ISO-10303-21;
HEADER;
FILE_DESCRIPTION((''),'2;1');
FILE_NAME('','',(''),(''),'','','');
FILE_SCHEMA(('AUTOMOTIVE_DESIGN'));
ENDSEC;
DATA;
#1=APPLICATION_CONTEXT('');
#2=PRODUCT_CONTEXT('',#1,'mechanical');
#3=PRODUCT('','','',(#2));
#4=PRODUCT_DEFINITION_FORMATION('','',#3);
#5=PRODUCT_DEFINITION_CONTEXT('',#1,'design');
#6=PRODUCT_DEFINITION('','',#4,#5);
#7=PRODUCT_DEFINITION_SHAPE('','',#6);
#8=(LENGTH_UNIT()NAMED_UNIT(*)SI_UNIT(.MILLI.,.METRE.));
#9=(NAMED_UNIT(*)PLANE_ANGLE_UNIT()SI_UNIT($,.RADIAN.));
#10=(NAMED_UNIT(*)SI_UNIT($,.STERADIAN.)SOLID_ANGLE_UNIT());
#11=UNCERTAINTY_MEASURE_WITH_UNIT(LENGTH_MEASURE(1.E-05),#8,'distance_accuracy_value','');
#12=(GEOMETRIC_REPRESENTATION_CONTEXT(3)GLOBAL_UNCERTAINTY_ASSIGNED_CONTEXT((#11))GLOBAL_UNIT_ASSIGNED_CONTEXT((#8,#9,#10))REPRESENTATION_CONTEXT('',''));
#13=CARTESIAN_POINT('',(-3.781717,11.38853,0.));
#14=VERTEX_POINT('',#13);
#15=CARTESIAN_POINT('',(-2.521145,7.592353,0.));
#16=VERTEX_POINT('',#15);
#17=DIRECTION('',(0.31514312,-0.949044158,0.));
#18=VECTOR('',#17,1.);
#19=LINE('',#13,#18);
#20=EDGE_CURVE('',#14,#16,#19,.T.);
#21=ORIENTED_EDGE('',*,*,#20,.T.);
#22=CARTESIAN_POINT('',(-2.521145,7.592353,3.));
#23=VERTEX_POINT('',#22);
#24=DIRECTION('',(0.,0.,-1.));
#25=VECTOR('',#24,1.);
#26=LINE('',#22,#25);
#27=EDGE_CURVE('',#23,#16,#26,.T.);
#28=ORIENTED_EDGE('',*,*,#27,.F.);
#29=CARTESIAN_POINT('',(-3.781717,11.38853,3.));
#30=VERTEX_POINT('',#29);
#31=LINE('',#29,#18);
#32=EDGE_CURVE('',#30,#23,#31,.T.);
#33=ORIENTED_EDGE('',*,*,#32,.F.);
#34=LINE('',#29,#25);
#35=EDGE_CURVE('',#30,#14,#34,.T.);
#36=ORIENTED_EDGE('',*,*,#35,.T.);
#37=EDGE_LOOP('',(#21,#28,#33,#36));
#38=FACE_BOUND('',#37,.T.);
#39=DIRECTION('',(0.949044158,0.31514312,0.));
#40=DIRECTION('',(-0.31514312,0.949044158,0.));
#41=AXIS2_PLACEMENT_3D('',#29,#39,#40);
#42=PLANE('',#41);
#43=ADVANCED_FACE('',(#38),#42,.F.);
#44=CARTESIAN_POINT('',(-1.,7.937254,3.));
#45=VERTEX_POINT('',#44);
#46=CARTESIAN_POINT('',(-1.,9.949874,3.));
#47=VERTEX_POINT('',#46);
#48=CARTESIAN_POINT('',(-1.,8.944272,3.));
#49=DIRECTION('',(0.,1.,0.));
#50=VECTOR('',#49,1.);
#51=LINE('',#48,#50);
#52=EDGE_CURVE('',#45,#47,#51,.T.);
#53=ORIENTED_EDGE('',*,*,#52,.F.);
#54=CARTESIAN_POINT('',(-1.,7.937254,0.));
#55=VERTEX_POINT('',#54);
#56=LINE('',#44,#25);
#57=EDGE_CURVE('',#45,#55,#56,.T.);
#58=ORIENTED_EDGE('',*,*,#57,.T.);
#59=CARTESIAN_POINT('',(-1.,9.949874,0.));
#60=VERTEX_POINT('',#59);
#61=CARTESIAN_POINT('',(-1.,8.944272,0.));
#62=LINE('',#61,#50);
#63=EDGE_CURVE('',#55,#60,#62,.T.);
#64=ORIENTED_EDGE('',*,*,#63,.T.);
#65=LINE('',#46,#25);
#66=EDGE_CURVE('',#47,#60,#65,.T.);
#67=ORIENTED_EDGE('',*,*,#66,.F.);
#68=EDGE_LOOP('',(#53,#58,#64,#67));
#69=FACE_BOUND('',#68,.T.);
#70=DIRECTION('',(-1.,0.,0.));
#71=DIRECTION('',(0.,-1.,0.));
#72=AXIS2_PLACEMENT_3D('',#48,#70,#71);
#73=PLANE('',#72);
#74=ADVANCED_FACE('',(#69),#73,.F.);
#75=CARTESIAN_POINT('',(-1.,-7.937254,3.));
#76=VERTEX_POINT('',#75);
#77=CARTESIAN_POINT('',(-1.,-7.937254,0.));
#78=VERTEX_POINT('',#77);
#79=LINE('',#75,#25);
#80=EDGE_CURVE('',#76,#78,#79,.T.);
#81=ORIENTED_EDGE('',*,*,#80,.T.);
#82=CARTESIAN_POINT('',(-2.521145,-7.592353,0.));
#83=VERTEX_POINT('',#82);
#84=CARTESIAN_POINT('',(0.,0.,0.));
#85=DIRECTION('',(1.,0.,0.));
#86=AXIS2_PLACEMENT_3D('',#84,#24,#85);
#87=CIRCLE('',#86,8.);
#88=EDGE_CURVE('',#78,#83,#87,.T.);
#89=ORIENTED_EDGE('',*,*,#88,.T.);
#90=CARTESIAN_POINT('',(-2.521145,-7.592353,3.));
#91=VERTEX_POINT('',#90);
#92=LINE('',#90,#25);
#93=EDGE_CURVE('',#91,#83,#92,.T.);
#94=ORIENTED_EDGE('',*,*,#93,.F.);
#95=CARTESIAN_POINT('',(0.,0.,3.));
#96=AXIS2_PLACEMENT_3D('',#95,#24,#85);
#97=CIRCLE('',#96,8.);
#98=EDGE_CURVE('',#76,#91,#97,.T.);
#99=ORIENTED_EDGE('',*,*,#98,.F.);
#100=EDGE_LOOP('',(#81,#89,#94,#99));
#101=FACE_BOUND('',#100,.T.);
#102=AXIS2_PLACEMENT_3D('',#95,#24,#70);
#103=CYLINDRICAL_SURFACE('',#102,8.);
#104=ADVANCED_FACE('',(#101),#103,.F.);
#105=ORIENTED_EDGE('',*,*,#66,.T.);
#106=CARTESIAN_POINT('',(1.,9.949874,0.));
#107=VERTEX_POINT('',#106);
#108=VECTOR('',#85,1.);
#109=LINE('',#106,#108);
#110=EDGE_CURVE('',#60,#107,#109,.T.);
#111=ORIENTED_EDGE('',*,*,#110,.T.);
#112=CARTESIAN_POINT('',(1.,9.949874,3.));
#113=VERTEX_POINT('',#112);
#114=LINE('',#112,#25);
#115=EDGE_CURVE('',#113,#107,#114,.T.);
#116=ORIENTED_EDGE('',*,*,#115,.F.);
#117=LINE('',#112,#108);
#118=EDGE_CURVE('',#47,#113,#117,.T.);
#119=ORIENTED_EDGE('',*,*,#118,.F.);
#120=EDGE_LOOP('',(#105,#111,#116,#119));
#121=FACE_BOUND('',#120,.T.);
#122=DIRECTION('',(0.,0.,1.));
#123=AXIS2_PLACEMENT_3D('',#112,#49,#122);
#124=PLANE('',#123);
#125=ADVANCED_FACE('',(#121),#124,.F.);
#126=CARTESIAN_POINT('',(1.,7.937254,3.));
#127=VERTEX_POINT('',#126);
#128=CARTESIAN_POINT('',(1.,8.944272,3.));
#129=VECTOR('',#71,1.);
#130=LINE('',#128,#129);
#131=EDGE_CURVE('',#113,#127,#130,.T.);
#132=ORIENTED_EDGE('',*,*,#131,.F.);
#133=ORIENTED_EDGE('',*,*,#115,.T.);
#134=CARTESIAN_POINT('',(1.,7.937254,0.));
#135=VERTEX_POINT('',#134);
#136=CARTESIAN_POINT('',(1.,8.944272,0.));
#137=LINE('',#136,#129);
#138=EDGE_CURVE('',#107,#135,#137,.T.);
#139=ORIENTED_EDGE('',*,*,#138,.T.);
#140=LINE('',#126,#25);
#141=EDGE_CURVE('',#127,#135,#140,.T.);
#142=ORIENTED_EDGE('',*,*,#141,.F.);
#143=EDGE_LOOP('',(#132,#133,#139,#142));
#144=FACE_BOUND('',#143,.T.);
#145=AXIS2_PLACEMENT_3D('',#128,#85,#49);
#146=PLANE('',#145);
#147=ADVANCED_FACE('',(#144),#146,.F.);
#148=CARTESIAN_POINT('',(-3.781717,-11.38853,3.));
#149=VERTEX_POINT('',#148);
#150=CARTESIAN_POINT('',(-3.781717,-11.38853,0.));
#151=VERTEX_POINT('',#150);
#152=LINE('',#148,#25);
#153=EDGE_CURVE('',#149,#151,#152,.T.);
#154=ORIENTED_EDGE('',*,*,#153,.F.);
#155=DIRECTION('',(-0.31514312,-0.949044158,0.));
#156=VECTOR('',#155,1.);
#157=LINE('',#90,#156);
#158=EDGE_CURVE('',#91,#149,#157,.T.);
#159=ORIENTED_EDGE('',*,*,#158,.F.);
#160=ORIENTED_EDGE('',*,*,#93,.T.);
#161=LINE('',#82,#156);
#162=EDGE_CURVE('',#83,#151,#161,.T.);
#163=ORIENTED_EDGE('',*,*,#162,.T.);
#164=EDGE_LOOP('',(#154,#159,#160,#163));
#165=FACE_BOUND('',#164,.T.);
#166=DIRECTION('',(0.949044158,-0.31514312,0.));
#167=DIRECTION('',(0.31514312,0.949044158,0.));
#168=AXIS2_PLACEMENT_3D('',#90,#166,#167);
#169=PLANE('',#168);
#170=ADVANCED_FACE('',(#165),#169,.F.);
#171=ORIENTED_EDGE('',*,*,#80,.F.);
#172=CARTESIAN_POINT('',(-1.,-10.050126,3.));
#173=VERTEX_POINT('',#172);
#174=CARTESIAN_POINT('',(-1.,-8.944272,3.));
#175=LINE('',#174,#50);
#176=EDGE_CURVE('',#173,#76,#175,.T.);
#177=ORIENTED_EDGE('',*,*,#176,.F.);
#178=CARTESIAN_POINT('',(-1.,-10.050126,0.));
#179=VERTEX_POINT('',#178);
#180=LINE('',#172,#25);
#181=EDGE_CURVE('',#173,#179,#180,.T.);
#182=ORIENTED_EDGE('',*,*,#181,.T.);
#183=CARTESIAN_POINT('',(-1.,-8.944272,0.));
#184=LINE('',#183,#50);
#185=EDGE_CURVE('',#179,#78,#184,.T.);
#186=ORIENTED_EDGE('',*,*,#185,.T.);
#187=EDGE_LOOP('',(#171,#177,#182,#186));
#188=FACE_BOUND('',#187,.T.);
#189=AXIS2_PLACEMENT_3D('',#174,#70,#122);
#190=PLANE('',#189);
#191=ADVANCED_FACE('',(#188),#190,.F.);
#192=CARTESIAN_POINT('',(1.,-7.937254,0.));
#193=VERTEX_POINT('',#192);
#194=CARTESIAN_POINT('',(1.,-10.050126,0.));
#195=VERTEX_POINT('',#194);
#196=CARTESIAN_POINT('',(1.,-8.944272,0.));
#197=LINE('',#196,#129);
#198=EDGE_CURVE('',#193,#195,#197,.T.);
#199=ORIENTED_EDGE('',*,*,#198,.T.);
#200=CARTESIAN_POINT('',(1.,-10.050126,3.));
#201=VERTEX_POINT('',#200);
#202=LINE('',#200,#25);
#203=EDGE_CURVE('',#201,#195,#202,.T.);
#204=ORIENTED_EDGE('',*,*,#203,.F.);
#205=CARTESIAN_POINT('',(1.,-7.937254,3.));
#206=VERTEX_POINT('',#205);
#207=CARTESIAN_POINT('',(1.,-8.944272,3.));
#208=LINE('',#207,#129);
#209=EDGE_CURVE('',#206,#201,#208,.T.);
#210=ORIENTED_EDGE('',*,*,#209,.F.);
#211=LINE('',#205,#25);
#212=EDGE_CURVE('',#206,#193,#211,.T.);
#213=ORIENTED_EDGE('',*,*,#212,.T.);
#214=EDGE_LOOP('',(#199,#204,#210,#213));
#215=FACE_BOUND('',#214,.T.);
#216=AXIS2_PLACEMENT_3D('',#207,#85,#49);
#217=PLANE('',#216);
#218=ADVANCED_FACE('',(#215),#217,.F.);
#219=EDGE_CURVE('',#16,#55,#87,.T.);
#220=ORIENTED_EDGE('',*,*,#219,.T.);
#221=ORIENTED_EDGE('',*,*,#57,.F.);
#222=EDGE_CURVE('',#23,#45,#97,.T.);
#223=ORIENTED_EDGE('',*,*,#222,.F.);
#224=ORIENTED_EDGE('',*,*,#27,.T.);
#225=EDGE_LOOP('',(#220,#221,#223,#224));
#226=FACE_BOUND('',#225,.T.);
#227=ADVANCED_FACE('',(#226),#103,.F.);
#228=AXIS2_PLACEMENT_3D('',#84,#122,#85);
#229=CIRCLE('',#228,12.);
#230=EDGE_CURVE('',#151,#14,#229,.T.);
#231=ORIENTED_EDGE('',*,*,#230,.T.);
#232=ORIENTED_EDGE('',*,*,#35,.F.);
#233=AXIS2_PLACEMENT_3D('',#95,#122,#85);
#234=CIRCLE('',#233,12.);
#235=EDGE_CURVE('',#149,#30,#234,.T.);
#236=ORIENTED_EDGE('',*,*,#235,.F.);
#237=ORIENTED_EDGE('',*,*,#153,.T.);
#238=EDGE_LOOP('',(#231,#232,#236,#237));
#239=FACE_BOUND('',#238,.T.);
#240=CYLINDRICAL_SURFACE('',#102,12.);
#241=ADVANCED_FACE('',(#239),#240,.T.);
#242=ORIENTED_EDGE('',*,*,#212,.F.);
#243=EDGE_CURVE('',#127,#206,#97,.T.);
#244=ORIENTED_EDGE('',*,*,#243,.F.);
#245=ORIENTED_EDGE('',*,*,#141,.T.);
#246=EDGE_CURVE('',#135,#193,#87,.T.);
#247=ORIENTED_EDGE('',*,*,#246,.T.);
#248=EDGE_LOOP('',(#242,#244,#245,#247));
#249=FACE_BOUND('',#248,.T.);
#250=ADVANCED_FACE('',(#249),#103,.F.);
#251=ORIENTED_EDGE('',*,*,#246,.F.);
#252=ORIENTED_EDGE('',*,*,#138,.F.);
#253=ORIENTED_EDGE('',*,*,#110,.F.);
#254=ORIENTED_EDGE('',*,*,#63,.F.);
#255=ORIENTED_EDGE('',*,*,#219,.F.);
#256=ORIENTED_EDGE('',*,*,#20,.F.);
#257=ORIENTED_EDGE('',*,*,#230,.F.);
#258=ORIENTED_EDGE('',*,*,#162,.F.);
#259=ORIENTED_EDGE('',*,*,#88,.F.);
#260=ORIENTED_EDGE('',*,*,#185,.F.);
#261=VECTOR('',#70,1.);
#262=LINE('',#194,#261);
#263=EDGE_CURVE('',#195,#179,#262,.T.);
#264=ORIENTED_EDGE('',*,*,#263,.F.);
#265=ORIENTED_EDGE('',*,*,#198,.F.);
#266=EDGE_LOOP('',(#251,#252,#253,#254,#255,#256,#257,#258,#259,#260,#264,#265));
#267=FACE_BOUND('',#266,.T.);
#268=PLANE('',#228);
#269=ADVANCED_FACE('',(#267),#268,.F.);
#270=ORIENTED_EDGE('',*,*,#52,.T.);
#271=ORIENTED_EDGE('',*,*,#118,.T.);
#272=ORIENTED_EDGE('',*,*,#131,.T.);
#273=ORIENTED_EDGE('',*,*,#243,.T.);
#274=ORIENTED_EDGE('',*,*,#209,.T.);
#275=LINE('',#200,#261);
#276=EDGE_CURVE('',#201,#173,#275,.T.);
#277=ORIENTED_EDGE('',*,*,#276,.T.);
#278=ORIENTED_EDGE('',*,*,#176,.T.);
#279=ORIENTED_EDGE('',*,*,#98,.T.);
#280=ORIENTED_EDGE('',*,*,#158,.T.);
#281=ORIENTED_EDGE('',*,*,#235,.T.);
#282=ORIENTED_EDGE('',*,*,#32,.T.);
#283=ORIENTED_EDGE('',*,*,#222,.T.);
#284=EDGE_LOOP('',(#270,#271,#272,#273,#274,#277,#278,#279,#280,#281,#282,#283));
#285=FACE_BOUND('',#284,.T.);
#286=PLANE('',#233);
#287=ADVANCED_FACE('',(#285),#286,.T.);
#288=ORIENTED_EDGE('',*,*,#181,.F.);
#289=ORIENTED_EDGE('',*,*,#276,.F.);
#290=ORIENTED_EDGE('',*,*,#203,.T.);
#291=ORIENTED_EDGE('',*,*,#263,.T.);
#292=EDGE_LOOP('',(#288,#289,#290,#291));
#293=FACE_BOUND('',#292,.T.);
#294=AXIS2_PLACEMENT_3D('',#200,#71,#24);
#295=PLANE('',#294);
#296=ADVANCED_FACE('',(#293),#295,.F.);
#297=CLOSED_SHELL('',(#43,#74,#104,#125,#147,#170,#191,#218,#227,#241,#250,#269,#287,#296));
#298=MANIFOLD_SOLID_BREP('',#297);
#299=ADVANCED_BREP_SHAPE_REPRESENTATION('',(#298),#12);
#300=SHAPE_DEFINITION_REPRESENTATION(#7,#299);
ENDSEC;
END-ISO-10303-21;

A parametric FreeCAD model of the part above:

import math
import FreeCAD as App
import Part
import Sketcher
from FreeCAD import Vector

doc = App.newDocument("Part")
body = doc.addObject("PartDesign::Body", "Body")

sketch1 = body.newObject("Sketcher::SketchObject", "Sketch")
sketch1.AttachmentSupport = (doc.getObject("XY_Plane"), [""])
sketch1.MapMode = "FlatFace"
sketch1.addGeometry([
    Part.LineSegment(Vector(-3.8, 11.4, 0), Vector(-2.5, 7.6, 0)),
    Part.ArcOfCircle(Part.Circle(Vector(0, 0, 0), Vector(0, 0, 1), 8), math.radians(97.18), math.radians(108.37)),
    Part.LineSegment(Vector(-1, 7.9, 0), Vector(-1, 9.9, 0)),
    Part.LineSegment(Vector(-1, 9.9, 0), Vector(1, 9.9, 0)),
    Part.LineSegment(Vector(1, 9.9, 0), Vector(1, 7.9, 0)),
    Part.ArcOfCircle(Part.Circle(Vector(0, 0, 0), Vector(0, 0, 1), 8), math.radians(-83), math.radians(83)),
    Part.LineSegment(Vector(1, -7.9, 0), Vector(1, -10.1, 0)),
    Part.LineSegment(Vector(1, -10.1, 0), Vector(-1, -10.1, 0)),
    Part.LineSegment(Vector(-1, -10.1, 0), Vector(-1, -7.9, 0)),
    Part.ArcOfCircle(Part.Circle(Vector(0, 0, 0), Vector(0, 0, 1), 8), math.radians(-108.37), math.radians(-97.18)),
    Part.LineSegment(Vector(-2.5, -7.6, 0), Vector(-3.8, -11.4, 0)),
    Part.ArcOfCircle(Part.Circle(Vector(0, 0, 0), Vector(0, 0, 1), 12), math.radians(-108), math.radians(108)),
], False)
sketch1.addConstraint([
    Sketcher.Constraint("Coincident", 0, 2, 1, 2),
    Sketcher.Constraint("Coincident", 1, 1, 2, 1),
    Sketcher.Constraint("Coincident", 2, 2, 3, 1),
    Sketcher.Constraint("Coincident", 3, 2, 4, 1),
    Sketcher.Constraint("Coincident", 4, 2, 5, 2),
    Sketcher.Constraint("Coincident", 5, 1, 6, 1),
    Sketcher.Constraint("Coincident", 6, 2, 7, 1),
    Sketcher.Constraint("Coincident", 7, 2, 8, 1),
    Sketcher.Constraint("Coincident", 8, 2, 9, 2),
    Sketcher.Constraint("Coincident", 9, 1, 10, 1),
    Sketcher.Constraint("Coincident", 10, 2, 11, 1),
    Sketcher.Constraint("Coincident", 11, 2, 0, 1),
    Sketcher.Constraint("Vertical", 2),
    Sketcher.Constraint("Horizontal", 3),
    Sketcher.Constraint("Vertical", 4),
    Sketcher.Constraint("Vertical", 6),
    Sketcher.Constraint("Horizontal", 7),
    Sketcher.Constraint("Vertical", 8),
    Sketcher.Constraint("Coincident", 1, 3, -1, 1),
    Sketcher.Constraint("Coincident", 5, 3, -1, 1),
    Sketcher.Constraint("Coincident", 9, 3, -1, 1),
    Sketcher.Constraint("Coincident", 11, 3, -1, 1),
    Sketcher.Constraint("Equal", 1, 5),
    Sketcher.Constraint("Equal", 5, 9),
    Sketcher.Constraint("Horizontal", 1, 1, 4, 2),
    Sketcher.Constraint("Horizontal", 5, 1, 8, 2),
    Sketcher.Constraint("Vertical", 4, 2, 5, 1),
    Sketcher.Constraint("Vertical", 0, 2, 9, 1),
    Sketcher.Constraint("Vertical", 10, 2, 11, 2),
    Sketcher.Constraint("Radius", 1, 8.0),
    Sketcher.Constraint("Radius", 11, 12.0),
    Sketcher.Constraint("DistanceX", 3, 1, 3, 2, 2.0),
    Sketcher.Constraint("DistanceY", 2, 1, 2, 2, 2.01262),
    Sketcher.Constraint("DistanceY", 6, 2, 6, 1, 2.112872),
    Sketcher.Constraint("DistanceY", 0, 2, 1, 1, 0.344901),
    Sketcher.Constraint("DistanceY", 10, 2, -1, 1, 11.38853),
])
pad1 = body.newObject("PartDesign::Pad", "Pad")
pad1.Profile = sketch1
pad1.Length = 3

doc.recompute()
